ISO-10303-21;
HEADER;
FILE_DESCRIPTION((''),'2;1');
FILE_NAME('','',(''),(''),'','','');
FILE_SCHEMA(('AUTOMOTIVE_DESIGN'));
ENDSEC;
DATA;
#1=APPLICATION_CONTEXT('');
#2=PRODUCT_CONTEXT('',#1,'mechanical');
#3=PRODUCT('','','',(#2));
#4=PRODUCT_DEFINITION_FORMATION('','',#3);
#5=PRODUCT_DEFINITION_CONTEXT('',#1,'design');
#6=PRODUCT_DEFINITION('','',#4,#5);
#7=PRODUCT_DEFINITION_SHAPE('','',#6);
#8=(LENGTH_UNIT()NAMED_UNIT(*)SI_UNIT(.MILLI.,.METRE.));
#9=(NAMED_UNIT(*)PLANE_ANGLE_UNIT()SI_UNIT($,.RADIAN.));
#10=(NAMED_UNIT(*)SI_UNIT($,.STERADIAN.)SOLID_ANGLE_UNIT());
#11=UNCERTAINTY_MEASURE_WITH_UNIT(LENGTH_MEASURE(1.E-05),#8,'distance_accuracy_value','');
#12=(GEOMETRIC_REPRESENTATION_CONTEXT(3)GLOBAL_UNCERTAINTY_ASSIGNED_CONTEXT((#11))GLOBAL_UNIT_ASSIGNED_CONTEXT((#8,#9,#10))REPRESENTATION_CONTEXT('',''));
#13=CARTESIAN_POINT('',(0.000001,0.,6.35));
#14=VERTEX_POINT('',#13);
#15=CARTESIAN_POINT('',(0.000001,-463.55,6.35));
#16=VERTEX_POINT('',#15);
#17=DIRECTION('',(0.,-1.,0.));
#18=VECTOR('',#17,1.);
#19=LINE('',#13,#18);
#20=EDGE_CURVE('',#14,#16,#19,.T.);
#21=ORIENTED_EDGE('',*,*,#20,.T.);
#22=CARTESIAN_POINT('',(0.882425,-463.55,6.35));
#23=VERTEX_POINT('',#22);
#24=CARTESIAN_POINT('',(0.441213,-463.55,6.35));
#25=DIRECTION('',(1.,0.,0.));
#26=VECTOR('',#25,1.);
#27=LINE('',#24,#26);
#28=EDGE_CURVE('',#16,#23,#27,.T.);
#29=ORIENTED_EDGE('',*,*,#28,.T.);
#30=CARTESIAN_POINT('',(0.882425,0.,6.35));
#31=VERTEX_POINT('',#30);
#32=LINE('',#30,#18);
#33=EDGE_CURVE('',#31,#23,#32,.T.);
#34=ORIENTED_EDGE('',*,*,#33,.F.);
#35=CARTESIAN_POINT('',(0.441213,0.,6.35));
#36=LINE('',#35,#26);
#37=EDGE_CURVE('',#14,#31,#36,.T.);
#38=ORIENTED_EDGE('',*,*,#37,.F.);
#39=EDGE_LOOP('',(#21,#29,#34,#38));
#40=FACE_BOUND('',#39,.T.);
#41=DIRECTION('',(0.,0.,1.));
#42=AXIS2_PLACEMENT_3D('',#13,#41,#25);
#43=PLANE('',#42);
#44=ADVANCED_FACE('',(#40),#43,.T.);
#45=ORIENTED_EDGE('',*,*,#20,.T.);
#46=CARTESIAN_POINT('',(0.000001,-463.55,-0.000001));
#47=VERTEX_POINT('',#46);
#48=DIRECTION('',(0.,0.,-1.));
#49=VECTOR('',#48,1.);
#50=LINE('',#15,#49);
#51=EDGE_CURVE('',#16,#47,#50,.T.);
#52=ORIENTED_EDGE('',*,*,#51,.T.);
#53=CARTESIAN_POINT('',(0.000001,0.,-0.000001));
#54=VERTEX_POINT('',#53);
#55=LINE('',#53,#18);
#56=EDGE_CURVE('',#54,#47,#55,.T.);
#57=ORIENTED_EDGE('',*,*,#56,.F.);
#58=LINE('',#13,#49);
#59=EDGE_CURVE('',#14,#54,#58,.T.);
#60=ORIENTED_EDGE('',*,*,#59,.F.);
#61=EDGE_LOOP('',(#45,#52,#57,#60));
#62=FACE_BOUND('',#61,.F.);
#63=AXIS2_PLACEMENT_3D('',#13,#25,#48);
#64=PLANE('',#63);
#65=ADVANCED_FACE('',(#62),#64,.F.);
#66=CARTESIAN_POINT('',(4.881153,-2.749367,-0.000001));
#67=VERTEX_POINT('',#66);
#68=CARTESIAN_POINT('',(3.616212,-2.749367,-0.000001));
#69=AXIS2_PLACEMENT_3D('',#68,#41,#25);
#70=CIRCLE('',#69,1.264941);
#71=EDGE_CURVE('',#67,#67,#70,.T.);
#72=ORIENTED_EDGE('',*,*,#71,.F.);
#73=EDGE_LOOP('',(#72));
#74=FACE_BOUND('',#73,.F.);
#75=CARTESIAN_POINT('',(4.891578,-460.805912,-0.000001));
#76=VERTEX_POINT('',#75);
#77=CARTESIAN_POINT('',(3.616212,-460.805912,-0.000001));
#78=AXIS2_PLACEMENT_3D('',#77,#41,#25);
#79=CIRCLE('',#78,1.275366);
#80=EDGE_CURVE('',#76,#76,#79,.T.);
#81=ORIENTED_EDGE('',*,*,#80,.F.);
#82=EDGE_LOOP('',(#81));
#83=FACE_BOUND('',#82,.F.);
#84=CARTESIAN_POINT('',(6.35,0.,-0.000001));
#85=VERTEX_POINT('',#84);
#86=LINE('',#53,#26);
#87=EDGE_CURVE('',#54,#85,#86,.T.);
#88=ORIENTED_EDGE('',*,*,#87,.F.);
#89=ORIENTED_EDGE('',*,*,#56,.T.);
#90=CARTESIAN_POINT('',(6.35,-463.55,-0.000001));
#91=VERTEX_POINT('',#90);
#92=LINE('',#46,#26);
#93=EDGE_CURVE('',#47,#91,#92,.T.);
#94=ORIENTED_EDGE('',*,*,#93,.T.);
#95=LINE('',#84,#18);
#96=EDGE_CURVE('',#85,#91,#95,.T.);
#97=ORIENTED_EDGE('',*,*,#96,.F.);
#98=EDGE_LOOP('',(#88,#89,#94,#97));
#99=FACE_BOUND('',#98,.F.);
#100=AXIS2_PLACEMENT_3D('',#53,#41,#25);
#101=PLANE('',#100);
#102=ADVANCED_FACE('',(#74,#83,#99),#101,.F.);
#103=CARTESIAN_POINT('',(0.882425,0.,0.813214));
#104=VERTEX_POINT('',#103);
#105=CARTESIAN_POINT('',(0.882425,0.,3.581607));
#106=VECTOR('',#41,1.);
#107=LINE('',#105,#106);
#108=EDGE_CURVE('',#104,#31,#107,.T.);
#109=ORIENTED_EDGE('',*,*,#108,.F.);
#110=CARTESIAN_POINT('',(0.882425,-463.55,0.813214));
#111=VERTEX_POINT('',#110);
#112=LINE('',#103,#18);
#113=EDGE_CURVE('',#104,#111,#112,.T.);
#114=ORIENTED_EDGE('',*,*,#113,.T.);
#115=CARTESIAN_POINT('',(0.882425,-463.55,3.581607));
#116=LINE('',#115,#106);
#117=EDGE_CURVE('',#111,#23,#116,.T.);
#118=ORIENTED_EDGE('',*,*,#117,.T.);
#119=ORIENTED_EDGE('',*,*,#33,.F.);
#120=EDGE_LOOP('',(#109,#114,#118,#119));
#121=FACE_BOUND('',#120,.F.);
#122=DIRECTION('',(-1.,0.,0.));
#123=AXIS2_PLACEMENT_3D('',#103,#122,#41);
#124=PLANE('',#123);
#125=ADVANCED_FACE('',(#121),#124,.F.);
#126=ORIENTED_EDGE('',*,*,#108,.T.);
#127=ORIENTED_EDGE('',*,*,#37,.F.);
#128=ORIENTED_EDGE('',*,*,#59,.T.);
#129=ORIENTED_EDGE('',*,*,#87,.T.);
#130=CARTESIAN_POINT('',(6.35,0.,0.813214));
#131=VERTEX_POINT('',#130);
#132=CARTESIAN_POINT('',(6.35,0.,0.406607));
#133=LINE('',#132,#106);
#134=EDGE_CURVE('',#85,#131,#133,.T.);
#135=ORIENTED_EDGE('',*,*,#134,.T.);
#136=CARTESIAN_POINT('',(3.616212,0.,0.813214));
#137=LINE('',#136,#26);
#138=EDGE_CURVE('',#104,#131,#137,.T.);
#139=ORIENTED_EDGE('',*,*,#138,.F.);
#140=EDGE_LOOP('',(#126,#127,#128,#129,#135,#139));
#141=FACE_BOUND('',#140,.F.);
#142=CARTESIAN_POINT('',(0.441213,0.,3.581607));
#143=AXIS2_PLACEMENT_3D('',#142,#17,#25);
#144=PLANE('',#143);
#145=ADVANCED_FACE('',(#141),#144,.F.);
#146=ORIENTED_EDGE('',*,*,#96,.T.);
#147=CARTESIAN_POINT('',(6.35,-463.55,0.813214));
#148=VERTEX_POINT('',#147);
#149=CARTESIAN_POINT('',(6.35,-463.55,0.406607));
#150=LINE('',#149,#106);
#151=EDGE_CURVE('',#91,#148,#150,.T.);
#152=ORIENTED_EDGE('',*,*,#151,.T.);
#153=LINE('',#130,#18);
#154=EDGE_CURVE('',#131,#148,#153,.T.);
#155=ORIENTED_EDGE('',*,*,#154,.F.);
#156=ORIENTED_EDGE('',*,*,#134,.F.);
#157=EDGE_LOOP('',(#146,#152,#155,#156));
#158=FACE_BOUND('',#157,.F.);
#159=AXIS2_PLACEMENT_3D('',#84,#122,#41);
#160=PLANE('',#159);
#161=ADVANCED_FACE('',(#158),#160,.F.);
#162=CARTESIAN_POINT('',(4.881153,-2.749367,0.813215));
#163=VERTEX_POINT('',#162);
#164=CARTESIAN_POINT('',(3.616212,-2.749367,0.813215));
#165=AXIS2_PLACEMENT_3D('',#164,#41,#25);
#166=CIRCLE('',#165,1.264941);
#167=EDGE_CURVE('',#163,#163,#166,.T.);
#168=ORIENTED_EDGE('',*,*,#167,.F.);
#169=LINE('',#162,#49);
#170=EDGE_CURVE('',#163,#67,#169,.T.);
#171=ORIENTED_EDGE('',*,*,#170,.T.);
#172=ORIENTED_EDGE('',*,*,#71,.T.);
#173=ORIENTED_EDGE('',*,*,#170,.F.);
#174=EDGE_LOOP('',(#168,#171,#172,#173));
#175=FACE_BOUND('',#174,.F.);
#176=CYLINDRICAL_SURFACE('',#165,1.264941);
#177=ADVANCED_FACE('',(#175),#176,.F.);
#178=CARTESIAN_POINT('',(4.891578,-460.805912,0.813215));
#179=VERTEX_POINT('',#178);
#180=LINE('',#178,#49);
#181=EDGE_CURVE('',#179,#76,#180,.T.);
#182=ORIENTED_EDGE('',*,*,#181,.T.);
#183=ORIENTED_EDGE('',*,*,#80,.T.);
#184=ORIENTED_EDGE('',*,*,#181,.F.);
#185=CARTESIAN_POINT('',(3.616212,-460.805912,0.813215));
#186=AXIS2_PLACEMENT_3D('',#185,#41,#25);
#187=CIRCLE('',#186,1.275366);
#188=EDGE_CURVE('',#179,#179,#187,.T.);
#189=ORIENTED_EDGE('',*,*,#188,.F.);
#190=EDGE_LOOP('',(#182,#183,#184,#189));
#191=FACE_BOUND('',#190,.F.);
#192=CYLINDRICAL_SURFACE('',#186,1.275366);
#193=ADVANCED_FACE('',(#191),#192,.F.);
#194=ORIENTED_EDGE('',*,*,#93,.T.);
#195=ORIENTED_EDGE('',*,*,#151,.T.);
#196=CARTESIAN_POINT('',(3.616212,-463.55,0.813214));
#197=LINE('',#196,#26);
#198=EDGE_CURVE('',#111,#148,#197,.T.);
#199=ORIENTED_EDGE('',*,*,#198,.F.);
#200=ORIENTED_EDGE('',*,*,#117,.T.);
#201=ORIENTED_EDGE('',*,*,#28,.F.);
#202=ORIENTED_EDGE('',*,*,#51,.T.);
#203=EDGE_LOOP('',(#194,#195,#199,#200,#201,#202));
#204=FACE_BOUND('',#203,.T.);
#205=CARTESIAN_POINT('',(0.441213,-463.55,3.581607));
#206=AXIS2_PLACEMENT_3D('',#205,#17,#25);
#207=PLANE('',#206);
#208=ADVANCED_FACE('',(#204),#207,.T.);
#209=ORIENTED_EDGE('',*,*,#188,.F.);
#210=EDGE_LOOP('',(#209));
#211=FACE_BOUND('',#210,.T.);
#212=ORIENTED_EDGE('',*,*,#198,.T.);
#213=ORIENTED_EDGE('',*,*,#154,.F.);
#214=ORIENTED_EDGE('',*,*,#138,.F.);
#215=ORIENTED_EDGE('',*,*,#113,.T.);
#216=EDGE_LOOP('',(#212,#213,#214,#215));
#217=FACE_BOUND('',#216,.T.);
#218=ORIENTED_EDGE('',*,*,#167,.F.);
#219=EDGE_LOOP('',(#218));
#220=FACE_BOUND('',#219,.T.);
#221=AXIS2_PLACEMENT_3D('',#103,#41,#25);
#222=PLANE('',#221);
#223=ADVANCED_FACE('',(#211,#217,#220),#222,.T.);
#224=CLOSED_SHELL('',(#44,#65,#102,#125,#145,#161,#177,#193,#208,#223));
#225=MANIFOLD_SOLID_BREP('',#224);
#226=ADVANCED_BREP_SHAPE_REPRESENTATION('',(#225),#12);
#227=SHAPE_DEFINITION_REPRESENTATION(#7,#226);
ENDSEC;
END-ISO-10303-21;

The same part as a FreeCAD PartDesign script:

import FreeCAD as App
import Part
import Sketcher

V = App.Vector
Q = App.Units.Quantity

doc = App.newDocument("Part")
body = doc.addObject("PartDesign::Body", "Body")

# Sketch on XZ plane
sketch1 = body.newObject("Sketcher::SketchObject", "Sketch")
sketch1.AttachmentSupport = (doc.getObject("XZ_Plane"), [""])
sketch1.MapMode = "FlatFace"
sketch1.addGeometry([
    Part.LineSegment(V(0, 6.35, 0), V(0, 0, 0)),  # 0
    Part.LineSegment(V(0, 0, 0), V(6.35, 0, 0)),  # 1
    Part.LineSegment(V(6.35, 0, 0), V(6.35, 0.813214, 0)),  # 2
    Part.LineSegment(V(6.35, 0.813214, 0), V(0.882425, 0.813214, 0)),  # 3
    Part.LineSegment(V(0.882425, 0.813214, 0), V(0.882425, 6.35, 0)),  # 4
    Part.LineSegment(V(0.882425, 6.35, 0), V(0, 6.35, 0)),  # 5
], False)
sketch1.addConstraint([
    Sketcher.Constraint("Coincident", 0, 2, 1, 1),
    Sketcher.Constraint("Coincident", 1, 2, 2, 1),
    Sketcher.Constraint("Coincident", 2, 2, 3, 1),
    Sketcher.Constraint("Coincident", 3, 2, 4, 1),
    Sketcher.Constraint("Coincident", 4, 2, 5, 1),
    Sketcher.Constraint("Coincident", 5, 2, 0, 1),
    Sketcher.Constraint("Vertical", 0),
    Sketcher.Constraint("Horizontal", 1),
    Sketcher.Constraint("Vertical", 2),
    Sketcher.Constraint("Horizontal", 3),
    Sketcher.Constraint("Vertical", 4),
    Sketcher.Constraint("Horizontal", 5),
    Sketcher.Constraint("Coincident", 0, 2, -1, 1),
    Sketcher.Constraint("Equal", 1, 0),
    Sketcher.Constraint("DistanceX", 1, 1, 1, 2, Q("0.25 in")),
    Sketcher.Constraint("DistanceX", 3, 2, 3, 1, Q("5.467574 mm")),
    Sketcher.Constraint("DistanceY", 2, 1, 2, 2, Q("0.813215 mm")),
])
pad1 = body.newObject("PartDesign::Pad", "Pad")
pad1.Profile = sketch1
pad1.Length = Q("18.25 in")

# Sketch on XY plane
sketch2 = body.newObject("Sketcher::SketchObject", "Sketch001")
sketch2.AttachmentSupport = (doc.getObject("XY_Plane"), [""])
sketch2.MapMode = "FlatFace"
sketch2.AttachmentOffset = App.Placement(V(0, 0, 0.813215), App.Rotation())
sketch2.addGeometry(Part.Circle(V(3.616212, -2.749367, 0), V(0, 0, 1), 1.264941), False)
sketch2.addConstraint([
    Sketcher.Constraint("Diameter", 0, Q("2.529882 mm")),
    Sketcher.Constraint("DistanceX", -1, 1, 0, 3, Q("3.616212 mm")),
    Sketcher.Constraint("DistanceY", 0, 3, -1, 1, Q("2.749367 mm")),
])
pocket1 = body.newObject("PartDesign::Pocket", "Pocket")
pocket1.Profile = sketch2
pocket1.Length = Q("1 in")

# Sketch on XY plane
sketch3 = body.newObject("Sketcher::SketchObject", "Sketch002")
sketch3.AttachmentSupport = (doc.getObject("XY_Plane"), [""])
sketch3.MapMode = "FlatFace"
sketch3.AttachmentOffset = App.Placement(V(0, 0, 0.813215), App.Rotation())
sketch3.addGeometry(Part.Circle(V(3.616212, -460.805912, 0), V(0, 0, 1), 1.275366), False)
sketch3.addConstraint([
    Sketcher.Constraint("Diameter", 0, Q("2.550732 mm")),
    Sketcher.Constraint("DistanceX", -1, 1, 0, 3, Q("3.616212 mm")),
    Sketcher.Constraint("DistanceY", 0, 3, -1, 1, Q("460.805912 mm")),
])
pocket2 = body.newObject("PartDesign::Pocket", "Pocket001")
pocket2.Profile = sketch3
pocket2.Length = Q("1 in")

doc.recompute()
